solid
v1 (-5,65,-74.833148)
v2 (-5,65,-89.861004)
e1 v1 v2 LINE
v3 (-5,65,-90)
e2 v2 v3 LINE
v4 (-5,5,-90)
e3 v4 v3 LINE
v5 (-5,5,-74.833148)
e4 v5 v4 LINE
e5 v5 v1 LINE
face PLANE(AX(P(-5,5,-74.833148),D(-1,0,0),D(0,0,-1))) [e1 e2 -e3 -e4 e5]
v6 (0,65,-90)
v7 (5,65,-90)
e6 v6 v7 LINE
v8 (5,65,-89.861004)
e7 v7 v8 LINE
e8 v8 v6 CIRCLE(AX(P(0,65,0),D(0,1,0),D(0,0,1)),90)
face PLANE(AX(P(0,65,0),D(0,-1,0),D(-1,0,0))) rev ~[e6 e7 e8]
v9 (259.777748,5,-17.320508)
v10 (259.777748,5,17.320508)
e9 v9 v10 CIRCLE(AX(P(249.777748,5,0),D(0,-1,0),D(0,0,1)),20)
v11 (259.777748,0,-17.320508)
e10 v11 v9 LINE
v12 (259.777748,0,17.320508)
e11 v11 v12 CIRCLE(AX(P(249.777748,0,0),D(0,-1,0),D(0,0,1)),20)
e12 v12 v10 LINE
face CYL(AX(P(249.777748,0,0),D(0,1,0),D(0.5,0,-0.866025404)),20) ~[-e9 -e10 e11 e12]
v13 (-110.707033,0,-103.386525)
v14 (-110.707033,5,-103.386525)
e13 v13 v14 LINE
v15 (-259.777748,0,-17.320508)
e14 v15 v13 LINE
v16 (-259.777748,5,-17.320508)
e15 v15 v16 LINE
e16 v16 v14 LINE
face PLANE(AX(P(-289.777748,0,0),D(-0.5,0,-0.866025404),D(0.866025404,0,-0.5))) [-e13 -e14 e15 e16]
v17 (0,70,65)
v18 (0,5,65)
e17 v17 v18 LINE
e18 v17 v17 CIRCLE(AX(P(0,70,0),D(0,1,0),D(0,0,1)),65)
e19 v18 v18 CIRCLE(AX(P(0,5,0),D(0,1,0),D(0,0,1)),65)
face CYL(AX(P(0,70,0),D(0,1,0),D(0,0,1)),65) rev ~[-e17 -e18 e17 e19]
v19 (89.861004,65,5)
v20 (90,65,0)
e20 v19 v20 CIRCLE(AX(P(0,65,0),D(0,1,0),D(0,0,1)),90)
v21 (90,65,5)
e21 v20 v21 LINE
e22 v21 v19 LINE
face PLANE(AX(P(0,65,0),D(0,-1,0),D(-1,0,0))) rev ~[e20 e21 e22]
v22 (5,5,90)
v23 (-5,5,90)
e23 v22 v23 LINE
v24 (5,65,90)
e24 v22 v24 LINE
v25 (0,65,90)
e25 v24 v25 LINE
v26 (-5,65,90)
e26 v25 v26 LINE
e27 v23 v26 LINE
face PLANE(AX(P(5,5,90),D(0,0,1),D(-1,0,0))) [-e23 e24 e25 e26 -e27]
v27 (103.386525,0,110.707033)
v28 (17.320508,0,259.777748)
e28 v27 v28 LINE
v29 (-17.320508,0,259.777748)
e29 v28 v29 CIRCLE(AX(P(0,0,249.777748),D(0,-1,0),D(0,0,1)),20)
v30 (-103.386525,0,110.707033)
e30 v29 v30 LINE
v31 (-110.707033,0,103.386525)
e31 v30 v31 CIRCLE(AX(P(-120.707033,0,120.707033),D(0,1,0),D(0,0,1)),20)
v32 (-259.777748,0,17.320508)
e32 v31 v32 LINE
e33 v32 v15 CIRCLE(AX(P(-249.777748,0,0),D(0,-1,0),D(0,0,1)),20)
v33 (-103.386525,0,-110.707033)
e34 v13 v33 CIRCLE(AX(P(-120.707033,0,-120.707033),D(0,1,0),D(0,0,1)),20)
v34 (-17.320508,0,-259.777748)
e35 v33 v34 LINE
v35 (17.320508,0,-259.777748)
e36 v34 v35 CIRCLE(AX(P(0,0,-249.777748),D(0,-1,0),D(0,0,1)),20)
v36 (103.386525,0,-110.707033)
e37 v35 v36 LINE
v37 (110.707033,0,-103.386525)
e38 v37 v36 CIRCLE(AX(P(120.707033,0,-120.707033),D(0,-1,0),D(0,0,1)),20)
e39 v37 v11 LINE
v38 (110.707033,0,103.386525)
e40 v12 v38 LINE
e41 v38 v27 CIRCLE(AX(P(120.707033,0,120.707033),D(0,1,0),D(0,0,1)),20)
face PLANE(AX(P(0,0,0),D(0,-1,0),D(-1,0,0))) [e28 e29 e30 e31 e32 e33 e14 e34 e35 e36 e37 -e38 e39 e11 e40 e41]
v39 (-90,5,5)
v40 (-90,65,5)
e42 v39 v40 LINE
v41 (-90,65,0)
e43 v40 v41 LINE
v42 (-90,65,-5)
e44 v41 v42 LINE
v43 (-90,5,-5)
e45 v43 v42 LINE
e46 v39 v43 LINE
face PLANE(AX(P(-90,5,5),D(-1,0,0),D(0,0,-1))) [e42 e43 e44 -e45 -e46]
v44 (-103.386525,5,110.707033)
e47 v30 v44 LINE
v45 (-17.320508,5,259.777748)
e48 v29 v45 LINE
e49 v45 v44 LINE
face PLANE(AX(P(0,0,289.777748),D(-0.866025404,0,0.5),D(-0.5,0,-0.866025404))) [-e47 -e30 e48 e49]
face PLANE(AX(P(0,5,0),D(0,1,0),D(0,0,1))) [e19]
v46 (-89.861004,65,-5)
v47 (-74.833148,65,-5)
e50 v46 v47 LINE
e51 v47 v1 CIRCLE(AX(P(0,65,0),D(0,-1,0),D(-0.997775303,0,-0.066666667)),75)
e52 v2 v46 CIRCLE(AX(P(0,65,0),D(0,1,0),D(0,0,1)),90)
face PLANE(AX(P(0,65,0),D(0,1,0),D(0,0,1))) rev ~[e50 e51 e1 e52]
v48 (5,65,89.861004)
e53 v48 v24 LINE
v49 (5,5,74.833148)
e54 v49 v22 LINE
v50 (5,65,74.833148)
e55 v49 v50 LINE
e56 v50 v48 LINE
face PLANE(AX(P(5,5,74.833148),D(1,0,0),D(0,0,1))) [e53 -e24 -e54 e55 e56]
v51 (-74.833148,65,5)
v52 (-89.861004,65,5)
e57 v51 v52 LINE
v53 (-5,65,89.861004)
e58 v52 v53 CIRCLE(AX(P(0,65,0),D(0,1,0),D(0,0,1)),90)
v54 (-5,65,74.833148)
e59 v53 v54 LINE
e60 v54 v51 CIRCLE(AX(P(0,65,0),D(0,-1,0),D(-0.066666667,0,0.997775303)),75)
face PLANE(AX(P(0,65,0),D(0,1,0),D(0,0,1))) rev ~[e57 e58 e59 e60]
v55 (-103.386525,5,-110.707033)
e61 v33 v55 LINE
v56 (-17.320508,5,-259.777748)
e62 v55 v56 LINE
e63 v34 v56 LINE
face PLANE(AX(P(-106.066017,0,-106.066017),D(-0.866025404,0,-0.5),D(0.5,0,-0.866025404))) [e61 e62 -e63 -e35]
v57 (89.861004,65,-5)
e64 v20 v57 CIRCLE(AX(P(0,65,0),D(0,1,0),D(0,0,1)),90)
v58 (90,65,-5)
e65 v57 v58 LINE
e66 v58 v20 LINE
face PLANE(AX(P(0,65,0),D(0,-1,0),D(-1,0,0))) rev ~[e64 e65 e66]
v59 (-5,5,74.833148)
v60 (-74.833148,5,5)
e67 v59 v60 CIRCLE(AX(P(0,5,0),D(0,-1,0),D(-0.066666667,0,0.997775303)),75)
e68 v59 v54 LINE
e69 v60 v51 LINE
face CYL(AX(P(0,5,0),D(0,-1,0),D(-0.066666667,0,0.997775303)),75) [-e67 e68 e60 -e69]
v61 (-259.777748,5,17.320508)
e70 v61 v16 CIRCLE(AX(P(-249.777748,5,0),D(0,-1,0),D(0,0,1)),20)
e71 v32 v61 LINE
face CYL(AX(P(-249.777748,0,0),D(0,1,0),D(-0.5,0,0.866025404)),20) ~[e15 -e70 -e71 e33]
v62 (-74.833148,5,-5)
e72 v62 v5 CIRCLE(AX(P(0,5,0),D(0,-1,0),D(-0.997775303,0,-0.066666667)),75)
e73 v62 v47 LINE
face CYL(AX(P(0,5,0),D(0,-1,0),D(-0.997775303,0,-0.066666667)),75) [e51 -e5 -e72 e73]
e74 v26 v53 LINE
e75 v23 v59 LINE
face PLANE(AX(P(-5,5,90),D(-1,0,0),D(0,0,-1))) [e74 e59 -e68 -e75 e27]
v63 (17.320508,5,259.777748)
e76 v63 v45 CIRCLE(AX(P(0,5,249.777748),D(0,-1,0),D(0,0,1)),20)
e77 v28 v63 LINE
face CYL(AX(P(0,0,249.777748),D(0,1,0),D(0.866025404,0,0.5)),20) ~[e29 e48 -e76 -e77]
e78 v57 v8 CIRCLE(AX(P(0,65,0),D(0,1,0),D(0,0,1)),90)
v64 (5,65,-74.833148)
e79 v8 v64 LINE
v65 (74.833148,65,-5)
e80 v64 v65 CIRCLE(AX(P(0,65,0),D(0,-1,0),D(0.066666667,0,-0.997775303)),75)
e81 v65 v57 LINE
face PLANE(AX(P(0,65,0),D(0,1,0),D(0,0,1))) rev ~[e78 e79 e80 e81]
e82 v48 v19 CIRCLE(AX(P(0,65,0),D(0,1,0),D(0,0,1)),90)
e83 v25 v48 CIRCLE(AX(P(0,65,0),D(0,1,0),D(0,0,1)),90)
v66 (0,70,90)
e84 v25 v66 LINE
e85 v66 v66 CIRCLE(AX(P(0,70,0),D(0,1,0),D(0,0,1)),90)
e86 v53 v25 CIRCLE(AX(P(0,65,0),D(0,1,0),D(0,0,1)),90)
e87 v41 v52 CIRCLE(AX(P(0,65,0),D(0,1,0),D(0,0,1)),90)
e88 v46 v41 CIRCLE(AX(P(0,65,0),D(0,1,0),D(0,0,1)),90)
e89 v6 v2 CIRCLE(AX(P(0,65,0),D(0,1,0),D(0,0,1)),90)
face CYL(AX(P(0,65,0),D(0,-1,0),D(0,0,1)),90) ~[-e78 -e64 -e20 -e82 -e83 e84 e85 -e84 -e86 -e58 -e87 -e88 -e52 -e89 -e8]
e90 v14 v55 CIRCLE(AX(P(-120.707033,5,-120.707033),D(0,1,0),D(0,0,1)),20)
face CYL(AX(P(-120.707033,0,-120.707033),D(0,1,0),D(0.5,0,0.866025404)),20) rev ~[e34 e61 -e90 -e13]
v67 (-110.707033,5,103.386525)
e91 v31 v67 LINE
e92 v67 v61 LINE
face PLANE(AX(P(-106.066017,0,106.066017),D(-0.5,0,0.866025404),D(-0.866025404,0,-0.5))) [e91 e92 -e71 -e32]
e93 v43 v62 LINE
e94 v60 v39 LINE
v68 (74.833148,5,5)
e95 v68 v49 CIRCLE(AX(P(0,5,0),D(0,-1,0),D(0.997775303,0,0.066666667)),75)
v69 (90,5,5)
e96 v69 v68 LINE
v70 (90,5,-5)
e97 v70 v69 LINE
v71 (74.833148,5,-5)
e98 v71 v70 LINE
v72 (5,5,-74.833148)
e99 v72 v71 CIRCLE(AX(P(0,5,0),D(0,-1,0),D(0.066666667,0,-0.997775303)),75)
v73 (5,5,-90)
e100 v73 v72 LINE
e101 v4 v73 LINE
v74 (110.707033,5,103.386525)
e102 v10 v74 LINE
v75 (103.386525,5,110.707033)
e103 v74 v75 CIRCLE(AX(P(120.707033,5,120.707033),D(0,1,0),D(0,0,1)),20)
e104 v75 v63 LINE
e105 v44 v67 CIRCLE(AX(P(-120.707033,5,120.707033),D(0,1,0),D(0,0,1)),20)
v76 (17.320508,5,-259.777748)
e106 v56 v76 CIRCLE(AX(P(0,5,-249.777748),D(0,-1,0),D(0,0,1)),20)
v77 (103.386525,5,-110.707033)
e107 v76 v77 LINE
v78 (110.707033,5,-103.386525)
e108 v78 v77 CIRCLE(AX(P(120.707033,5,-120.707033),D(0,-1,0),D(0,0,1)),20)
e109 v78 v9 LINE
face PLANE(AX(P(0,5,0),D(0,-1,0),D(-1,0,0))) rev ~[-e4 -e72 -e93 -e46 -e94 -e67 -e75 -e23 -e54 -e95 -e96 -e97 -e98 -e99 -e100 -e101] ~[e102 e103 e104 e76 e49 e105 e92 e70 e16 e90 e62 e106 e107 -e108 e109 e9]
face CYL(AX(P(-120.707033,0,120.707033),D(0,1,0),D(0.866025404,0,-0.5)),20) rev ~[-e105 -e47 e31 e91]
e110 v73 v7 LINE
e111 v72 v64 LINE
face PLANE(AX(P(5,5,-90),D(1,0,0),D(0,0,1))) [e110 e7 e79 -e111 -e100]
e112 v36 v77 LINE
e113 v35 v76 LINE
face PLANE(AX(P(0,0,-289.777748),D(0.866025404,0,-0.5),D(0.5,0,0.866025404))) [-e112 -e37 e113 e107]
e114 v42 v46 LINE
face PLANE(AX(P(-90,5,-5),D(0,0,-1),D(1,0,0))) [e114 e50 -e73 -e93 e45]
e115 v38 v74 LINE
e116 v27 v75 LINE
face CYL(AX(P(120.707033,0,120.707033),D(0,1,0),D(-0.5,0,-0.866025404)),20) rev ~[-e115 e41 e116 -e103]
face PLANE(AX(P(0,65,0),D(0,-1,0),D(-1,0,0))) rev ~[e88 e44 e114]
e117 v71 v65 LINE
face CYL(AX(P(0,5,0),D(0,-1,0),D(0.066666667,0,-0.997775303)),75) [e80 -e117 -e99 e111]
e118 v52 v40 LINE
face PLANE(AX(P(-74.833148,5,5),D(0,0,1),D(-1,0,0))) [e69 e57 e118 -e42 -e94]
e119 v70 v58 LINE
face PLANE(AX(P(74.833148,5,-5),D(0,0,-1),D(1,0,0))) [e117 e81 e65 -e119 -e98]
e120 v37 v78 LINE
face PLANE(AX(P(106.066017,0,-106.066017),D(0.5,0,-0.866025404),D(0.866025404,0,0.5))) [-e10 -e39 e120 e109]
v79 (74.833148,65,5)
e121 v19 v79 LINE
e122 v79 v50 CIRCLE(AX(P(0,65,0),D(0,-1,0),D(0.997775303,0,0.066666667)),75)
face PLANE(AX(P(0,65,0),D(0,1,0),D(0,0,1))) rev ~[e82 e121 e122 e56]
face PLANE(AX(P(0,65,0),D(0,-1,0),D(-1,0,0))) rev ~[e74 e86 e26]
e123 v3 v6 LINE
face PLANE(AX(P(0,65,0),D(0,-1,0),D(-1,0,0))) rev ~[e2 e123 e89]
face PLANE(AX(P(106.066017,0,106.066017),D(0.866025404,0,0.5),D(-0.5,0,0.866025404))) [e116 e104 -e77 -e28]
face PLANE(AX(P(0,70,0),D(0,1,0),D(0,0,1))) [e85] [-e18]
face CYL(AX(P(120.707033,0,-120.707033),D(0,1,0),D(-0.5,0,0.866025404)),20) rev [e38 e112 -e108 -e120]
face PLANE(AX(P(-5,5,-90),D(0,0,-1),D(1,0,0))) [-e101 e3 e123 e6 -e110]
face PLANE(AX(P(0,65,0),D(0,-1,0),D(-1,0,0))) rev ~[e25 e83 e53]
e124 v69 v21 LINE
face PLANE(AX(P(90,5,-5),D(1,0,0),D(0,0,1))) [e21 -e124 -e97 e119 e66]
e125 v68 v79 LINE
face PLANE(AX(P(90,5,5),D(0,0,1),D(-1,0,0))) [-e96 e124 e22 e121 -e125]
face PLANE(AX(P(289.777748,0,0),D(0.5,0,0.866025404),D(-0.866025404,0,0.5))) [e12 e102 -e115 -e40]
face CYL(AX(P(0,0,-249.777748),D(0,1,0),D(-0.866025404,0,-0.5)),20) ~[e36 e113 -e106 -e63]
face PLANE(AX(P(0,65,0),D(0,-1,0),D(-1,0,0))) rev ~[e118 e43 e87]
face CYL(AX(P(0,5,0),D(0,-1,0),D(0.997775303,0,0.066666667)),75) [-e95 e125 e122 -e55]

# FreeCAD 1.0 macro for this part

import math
import FreeCAD as App
import Part
import Sketcher

V = App.Vector
Q = App.Units.Quantity


def edges_at(feature, points):
    """Names of the edges that pass closest to the given points."""
    edges = feature.Shape.Edges
    near = lambda p: min(range(len(edges)), key=lambda i: edges[i].distToShape(Part.Vertex(*p))[0])
    return sorted({f"Edge{near(p) + 1}" for p in points})

doc = App.newDocument("Part")
params = doc.addObject("Spreadsheet::Sheet", "Params")
for row, (alias, value) in enumerate([
    ("pad1_length", "5 mm"),
    ("fillet_radius", "20 mm"),
    ("sketch2_radius", "75 mm"),
    ("sketch2_width", "10 mm"),
    ("pad2_length", "60 mm"),
    ("sketch3_diameter", "180 mm"),
    ("pad3_length", "5 mm"),
    ("sketch4_diameter", "130 mm"),
    ("pocket1_length", "65 mm"),
], start=1):
    params.set(f"A{row}", alias)
    params.set(f"B{row}", "=" + value)
    params.setAlias(f"B{row}", alias)

body = doc.addObject("PartDesign::Body", "Body")

# Sketch on XZ plane
sketch1 = body.newObject("Sketcher::SketchObject", "Sketch")
sketch1.AttachmentSupport = (doc.getObject("XZ_Plane"), [""])
sketch1.MapMode = "FlatFace"
sketch1.addGeometry([
    Part.LineSegment(V(290, 0, 0), V(106, -106, 0)),  # 0
    Part.LineSegment(V(106, -106, 0), V(0, -290, 0)),  # 1
    Part.LineSegment(V(0, -290, 0), V(-106, -106, 0)),  # 2
    Part.LineSegment(V(-106, -106, 0), V(-290, 0, 0)),  # 3
    Part.LineSegment(V(-290, 0, 0), V(-106, 106, 0)),  # 4
    Part.LineSegment(V(-106, 106, 0), V(0, 290, 0)),  # 5
    Part.LineSegment(V(0, 290, 0), V(106, 106, 0)),  # 6
    Part.LineSegment(V(106, 106, 0), V(290, 0, 0)),  # 7
], False)
sketch1.addConstraint([
    Sketcher.Constraint("Coincident", 0, 2, 1, 1),
    Sketcher.Constraint("Coincident", 1, 2, 2, 1),
    Sketcher.Constraint("Coincident", 2, 2, 3, 1),
    Sketcher.Constraint("Coincident", 3, 2, 4, 1),
    Sketcher.Constraint("Coincident", 4, 2, 5, 1),
    Sketcher.Constraint("Coincident", 5, 2, 6, 1),
    Sketcher.Constraint("Coincident", 6, 2, 7, 1),
    Sketcher.Constraint("Coincident", 7, 2, 0, 1),
    Sketcher.Constraint("Symmetric", 0, 2, 4, 2, -1, 1),
    Sketcher.Constraint("Symmetric", 1, 2, 5, 2, -1, 1),
    Sketcher.Constraint("Symmetric", 2, 2, 6, 2, -1, 1),
    Sketcher.Constraint("Symmetric", 3, 2, 7, 2, -1, 1),
    Sketcher.Constraint("Symmetric", 0, 2, 2, 2, -2),
    Sketcher.Constraint("PointOnObject", 1, 2, -2),
    Sketcher.Constraint("PointOnObject", 3, 2, -1),
    Sketcher.Constraint("Perpendicular", 0, 2),
    Sketcher.Constraint("Equal", 0, 1),
    Sketcher.Constraint("Angle", 0, Q("-150 deg")),
    Sketcher.Constraint("DistanceY", 1, 2, 0, 2, Q("183.711731 mm")),
])
pad1 = body.newObject("PartDesign::Pad", "Pad")
pad1.Profile = sketch1
pad1.setExpression("Length", "Params.pad1_length")
pad1.Reversed = True
doc.recompute()

fillet = body.newObject("PartDesign::Fillet", "Fillet")
fillet.Base = (pad1, edges_at(pad1, [
    (106.066, 2.5, -106.066),
    (289.778, 2.5, 0),
    (106.066, 2.5, 106.066),
    (0, 2.5, 289.778),
    (-106.066, 2.5, 106.066),
    (-289.778, 2.5, 0),
    (-106.066, 2.5, -106.066),
    (0, 2.5, -289.778),
]))
fillet.setExpression("Radius", "Params.fillet_radius")

# Sketch on XZ plane
sketch2 = body.newObject("Sketcher::SketchObject", "Sketch001")
sketch2.AttachmentSupport = (doc.getObject("XZ_Plane"), [""])
sketch2.MapMode = "FlatFace"
sketch2.AttachmentOffset = App.Placement(V(0, 0, -5), App.Rotation())
sketch2.addGeometry([
    Part.LineSegment(V(90, -5, 0), V(75, -5, 0)),  # 0
    Part.ArcOfCircle(Part.Circle(V(0, 0, 0), V(0, 0, 1), 75), math.radians(-86), math.radians(-4)),  # 1
    Part.LineSegment(V(5, -75, 0), V(5, -90, 0)),  # 2
    Part.LineSegment(V(5, -90, 0), V(-5, -90, 0)),  # 3
    Part.LineSegment(V(-5, -90, 0), V(-5, -75, 0)),  # 4
    Part.ArcOfCircle(Part.Circle(V(0, 0, 0), V(0, 0, 1), 75), math.radians(-176), math.radians(-94)),  # 5
    Part.LineSegment(V(-75, -5, 0), V(-90, -5, 0)),  # 6
    Part.LineSegment(V(-90, -5, 0), V(-90, 5, 0)),  # 7
    Part.LineSegment(V(-90, 5, 0), V(-75, 5, 0)),  # 8
    Part.ArcOfCircle(Part.Circle(V(0, 0, 0), V(0, 0, 1), 75), math.radians(94), math.radians(176)),  # 9
    Part.LineSegment(V(-5, 75, 0), V(-5, 90, 0)),  # 10
    Part.LineSegment(V(-5, 90, 0), V(5, 90, 0)),  # 11
    Part.LineSegment(V(5, 90, 0), V(5, 75, 0)),  # 12
    Part.ArcOfCircle(Part.Circle(V(0, 0, 0), V(0, 0, 1), 75), math.radians(4), math.radians(86)),  # 13
    Part.LineSegment(V(75, 5, 0), V(90, 5, 0)),  # 14
    Part.LineSegment(V(90, 5, 0), V(90, -5, 0)),  # 15
], False)
sketch2.addConstraint([
    Sketcher.Constraint("Coincident", 0, 2, 1, 2),
    Sketcher.Constraint("Coincident", 1, 1, 2, 1),
    Sketcher.Constraint("Coincident", 2, 2, 3, 1),
    Sketcher.Constraint("Coincident", 3, 2, 4, 1),
    Sketcher.Constraint("Coincident", 4, 2, 5, 2),
    Sketcher.Constraint("Coincident", 5, 1, 6, 1),
    Sketcher.Constraint("Coincident", 6, 2, 7, 1),
    Sketcher.Constraint("Coincident", 7, 2, 8, 1),
    Sketcher.Constraint("Coincident", 8, 2, 9, 2),
    Sketcher.Constraint("Coincident", 9, 1, 10, 1),
    Sketcher.Constraint("Coincident", 10, 2, 11, 1),
    Sketcher.Constraint("Coincident", 11, 2, 12, 1),
    Sketcher.Constraint("Coincident", 12, 2, 13, 2),
    Sketcher.Constraint("Coincident", 13, 1, 14, 1),
    Sketcher.Constraint("Coincident", 14, 2, 15, 1),
    Sketcher.Constraint("Coincident", 15, 2, 0, 1),
    Sketcher.Constraint("Horizontal", 0),
    Sketcher.Constraint("Vertical", 2),
    Sketcher.Constraint("Horizontal", 3),
    Sketcher.Constraint("Vertical", 4),
    Sketcher.Constraint("Horizontal", 6),
    Sketcher.Constraint("Vertical", 7),
    Sketcher.Constraint("Horizontal", 8),
    Sketcher.Constraint("Vertical", 10),
    Sketcher.Constraint("Horizontal", 11),
    Sketcher.Constraint("Vertical", 12),
    Sketcher.Constraint("Horizontal", 14),
    Sketcher.Constraint("Vertical", 15),
    Sketcher.Constraint("Coincident", 1, 3, -1, 1),
    Sketcher.Constraint("Coincident", 5, 3, -1, 1),
    Sketcher.Constraint("Coincident", 9, 3, -1, 1),
    Sketcher.Constraint("Coincident", 13, 3, -1, 1),
    Sketcher.Constraint("Equal", 1, 5),
    Sketcher.Constraint("Equal", 5, 9),
    Sketcher.Constraint("Equal", 9, 13),
    Sketcher.Constraint("Symmetric", 2, 2, 10, 2, -1, 1),
    Sketcher.Constraint("Symmetric", 6, 2, 14, 2, -1, 1),
    Sketcher.Constraint("Horizontal", 1, 1, 4, 2),
    Sketcher.Constraint("Horizontal", 0, 2, 5, 1),
    Sketcher.Constraint("Horizontal", 9, 1, 12, 2),
    Sketcher.Constraint("Horizontal", 8, 2, 13, 1),
    Sketcher.Constraint("Equal", 14, 2),
    Sketcher.Constraint("Equal", 11, 7),
    Sketcher.Constraint("Radius", 1, Q("75 mm")),
    Sketcher.Constraint("DistanceX", 3, 2, 3, 1, Q("10 mm")),
    Sketcher.Constraint("DistanceY", 2, 2, -1, 1, Q("90 mm")),
])
sketch2.setExpression("Constraints[43]", "Params.sketch2_radius")
sketch2.setExpression("Constraints[44]", "Params.sketch2_width")
pad2 = body.newObject("PartDesign::Pad", "Pad001")
pad2.Profile = sketch2
pad2.setExpression("Length", "Params.pad2_length")
pad2.Reversed = True

# Sketch on XZ plane
sketch3 = body.newObject("Sketcher::SketchObject", "Sketch002")
sketch3.AttachmentSupport = (doc.getObject("XZ_Plane"), [""])
sketch3.MapMode = "FlatFace"
sketch3.AttachmentOffset = App.Placement(V(0, 0, -65), App.Rotation())
sketch3.addGeometry(Part.Circle(V(0, 0, 0), V(0, 0, 1), 90), False)
sketch3.addConstraint([
    Sketcher.Constraint("Coincident", 0, 3, -1, 1),
    Sketcher.Constraint("Diameter", 0, Q("180 mm")),
])
sketch3.setExpression("Constraints[1]", "Params.sketch3_diameter")
pad3 = body.newObject("PartDesign::Pad", "Pad002")
pad3.Profile = sketch3
pad3.setExpression("Length", "Params.pad3_length")
pad3.Reversed = True

# Sketch on XZ plane
sketch4 = body.newObject("Sketcher::SketchObject", "Sketch003")
sketch4.AttachmentSupport = (doc.getObject("XZ_Plane"), [""])
sketch4.MapMode = "FlatFace"
sketch4.AttachmentOffset = App.Placement(V(0, 0, -70), App.Rotation())
sketch4.addGeometry(Part.Circle(V(0, 0, 0), V(0, 0, 1), 65), False)
sketch4.addConstraint([
    Sketcher.Constraint("Coincident", 0, 3, -1, 1),
    Sketcher.Constraint("Diameter", 0, Q("130 mm")),
])
sketch4.setExpression("Constraints[1]", "Params.sketch4_diameter")
pocket1 = body.newObject("PartDesign::Pocket", "Pocket")
pocket1.Profile = sketch4
pocket1.setExpression("Length", "Params.pocket1_length")
pocket1.Reversed = True

doc.recompute()
